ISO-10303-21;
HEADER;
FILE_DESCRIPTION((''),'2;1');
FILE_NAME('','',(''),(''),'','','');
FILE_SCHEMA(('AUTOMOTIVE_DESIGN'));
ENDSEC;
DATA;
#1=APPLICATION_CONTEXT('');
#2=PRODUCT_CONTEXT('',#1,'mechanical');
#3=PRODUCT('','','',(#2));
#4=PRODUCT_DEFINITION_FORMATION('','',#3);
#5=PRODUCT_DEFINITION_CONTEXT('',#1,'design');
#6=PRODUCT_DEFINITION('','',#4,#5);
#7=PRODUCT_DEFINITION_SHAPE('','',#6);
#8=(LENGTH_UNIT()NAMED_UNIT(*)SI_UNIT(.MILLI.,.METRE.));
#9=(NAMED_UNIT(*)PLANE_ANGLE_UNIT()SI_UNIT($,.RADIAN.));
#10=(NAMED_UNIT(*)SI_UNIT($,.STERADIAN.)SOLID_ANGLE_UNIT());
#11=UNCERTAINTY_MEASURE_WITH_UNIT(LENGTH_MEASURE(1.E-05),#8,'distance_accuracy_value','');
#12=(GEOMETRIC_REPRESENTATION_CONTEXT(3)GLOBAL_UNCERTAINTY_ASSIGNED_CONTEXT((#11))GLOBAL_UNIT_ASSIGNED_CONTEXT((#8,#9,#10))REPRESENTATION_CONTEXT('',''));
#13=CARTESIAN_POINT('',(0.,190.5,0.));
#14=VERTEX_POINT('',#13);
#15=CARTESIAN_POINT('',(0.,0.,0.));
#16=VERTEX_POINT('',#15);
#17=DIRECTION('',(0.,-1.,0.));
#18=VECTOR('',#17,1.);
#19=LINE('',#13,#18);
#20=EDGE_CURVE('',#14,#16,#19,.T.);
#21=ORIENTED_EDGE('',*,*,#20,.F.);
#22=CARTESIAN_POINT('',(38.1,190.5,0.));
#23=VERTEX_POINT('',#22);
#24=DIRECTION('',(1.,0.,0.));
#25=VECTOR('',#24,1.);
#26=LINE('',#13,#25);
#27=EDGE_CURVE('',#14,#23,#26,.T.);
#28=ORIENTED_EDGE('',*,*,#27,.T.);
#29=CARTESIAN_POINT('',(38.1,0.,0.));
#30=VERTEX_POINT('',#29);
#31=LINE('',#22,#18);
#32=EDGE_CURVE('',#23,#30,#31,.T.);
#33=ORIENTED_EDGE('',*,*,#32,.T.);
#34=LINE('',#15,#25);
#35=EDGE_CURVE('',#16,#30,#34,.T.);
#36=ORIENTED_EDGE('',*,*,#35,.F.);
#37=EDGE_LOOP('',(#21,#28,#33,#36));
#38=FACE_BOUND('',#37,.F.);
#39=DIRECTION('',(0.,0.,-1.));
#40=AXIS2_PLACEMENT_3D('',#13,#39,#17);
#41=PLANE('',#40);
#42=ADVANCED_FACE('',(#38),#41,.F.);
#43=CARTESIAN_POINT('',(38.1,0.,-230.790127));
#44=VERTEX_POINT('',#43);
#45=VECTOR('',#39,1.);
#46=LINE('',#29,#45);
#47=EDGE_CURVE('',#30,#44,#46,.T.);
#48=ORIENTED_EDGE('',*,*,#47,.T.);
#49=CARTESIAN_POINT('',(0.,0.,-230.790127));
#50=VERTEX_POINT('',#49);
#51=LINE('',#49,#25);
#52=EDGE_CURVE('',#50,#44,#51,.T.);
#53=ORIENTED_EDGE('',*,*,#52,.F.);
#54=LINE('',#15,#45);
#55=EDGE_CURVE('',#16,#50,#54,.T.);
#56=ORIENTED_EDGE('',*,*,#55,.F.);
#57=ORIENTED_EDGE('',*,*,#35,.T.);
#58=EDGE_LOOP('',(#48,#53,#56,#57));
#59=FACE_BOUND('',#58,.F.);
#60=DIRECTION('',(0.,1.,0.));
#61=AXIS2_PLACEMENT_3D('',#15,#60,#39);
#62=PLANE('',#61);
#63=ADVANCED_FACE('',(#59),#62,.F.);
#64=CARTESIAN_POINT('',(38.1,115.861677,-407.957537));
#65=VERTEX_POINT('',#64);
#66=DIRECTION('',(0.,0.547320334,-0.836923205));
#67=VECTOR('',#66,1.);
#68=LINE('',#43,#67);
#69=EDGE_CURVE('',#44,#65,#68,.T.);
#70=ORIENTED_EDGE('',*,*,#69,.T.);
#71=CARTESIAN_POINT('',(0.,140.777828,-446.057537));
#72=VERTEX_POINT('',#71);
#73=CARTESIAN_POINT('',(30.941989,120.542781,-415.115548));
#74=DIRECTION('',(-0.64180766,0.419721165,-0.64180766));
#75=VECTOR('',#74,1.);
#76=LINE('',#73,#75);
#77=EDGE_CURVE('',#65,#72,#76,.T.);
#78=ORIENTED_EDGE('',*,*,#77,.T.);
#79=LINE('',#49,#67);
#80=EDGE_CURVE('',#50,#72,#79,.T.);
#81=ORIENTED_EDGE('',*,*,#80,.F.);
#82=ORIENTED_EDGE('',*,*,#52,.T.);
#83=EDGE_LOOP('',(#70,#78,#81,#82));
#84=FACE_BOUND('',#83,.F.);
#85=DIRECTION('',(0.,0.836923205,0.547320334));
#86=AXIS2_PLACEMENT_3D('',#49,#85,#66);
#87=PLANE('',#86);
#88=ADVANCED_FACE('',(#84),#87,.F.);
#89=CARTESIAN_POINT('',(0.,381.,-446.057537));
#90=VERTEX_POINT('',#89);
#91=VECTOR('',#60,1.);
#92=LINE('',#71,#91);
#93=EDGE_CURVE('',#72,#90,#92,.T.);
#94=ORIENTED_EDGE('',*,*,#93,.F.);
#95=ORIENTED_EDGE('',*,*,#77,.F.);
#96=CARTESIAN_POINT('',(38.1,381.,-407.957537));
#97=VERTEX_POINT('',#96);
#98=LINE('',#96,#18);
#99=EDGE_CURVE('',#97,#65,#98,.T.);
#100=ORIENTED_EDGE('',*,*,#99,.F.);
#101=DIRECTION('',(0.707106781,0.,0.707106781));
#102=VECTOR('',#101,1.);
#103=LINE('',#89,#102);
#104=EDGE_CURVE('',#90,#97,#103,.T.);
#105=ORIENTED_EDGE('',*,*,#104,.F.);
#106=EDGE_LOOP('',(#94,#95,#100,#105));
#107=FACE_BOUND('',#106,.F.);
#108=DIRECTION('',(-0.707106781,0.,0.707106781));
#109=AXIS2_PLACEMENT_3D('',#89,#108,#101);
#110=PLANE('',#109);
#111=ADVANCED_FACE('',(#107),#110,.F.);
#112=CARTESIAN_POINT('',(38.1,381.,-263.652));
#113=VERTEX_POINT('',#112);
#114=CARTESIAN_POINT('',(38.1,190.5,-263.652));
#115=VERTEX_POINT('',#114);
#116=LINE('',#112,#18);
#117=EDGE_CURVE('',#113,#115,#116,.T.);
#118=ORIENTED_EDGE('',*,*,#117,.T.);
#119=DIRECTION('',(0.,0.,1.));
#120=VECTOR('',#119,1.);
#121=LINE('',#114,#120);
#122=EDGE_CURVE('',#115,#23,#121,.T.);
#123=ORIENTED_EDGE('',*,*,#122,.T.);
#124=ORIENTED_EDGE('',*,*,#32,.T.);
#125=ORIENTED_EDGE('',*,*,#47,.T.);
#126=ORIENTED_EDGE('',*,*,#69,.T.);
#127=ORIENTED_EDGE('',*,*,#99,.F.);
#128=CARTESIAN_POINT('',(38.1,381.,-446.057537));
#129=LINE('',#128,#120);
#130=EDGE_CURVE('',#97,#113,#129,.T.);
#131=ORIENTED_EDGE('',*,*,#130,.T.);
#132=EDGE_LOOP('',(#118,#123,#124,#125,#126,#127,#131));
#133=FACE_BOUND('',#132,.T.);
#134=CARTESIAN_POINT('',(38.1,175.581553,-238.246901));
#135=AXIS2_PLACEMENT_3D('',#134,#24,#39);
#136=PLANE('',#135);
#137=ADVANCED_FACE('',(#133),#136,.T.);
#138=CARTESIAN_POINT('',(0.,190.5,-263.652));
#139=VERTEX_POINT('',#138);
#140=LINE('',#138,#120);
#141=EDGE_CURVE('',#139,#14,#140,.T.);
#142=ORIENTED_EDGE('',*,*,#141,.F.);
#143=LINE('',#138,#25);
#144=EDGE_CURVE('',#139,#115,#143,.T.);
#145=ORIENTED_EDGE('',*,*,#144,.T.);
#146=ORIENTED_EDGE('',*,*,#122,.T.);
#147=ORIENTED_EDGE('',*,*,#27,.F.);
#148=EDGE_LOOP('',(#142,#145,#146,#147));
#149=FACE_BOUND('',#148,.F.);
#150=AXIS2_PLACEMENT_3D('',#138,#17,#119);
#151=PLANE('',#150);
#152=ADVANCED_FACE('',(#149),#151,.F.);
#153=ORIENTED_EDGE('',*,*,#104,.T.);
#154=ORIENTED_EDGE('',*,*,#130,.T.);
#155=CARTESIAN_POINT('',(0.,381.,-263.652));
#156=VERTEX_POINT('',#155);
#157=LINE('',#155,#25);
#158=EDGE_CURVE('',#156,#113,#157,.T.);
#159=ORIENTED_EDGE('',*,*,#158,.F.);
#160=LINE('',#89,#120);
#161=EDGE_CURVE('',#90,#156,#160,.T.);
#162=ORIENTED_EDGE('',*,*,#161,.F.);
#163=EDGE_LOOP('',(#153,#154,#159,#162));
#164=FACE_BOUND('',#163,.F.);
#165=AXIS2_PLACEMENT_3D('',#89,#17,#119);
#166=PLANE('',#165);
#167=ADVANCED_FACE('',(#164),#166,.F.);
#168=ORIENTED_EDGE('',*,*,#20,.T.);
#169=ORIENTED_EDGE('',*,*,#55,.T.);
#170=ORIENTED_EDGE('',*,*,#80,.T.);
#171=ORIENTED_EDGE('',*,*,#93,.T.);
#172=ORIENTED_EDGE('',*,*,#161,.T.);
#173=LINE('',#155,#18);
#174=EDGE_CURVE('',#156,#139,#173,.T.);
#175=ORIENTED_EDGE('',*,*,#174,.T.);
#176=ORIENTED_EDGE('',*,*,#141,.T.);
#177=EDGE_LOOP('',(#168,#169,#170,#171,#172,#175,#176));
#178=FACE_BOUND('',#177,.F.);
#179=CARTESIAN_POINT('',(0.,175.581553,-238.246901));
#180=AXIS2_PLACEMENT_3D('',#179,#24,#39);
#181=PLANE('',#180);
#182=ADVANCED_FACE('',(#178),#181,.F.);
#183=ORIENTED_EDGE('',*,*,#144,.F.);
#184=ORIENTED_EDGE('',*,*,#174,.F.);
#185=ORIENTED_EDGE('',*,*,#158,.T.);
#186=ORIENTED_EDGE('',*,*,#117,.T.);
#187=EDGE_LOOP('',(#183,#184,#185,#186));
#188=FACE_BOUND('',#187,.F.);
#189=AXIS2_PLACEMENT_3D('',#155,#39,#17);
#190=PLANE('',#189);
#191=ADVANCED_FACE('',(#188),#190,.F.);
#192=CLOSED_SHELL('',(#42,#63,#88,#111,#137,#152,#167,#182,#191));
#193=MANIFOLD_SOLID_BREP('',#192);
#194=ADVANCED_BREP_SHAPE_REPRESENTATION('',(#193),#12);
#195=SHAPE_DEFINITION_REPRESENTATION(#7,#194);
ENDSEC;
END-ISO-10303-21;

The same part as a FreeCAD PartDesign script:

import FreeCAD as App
import Part
import Sketcher
Q = App.Units.Quantity


def add_polygon(sketch, points):
    """Adds a closed chain of lines whose ends are joined by coincident constraints."""
    first, n = sketch.GeometryCount, len(points)
    for a, b in zip(points, points[1:] + points[:1]):
        sketch.addGeometry(Part.LineSegment(App.Vector(*a, 0), App.Vector(*b, 0)), False)
    for i in range(n):
        sketch.addConstraint(Sketcher.Constraint("Coincident", first + i, 2, first + (i + 1) % n, 1))

doc = App.newDocument("Part")
body = doc.addObject("PartDesign::Body", "Body")

# Sketch on YZ plane
sketch1 = doc.addObject("Sketcher::SketchObject", "Sketch")
body.addObject(sketch1)
sketch1.AttachmentSupport = (doc.YZ_Plane, [""])
sketch1.MapMode = "FlatFace"
add_polygon(sketch1, [(0, -231), (141, -446), (381, -446), (381, -264), (190, -264), (190, 0), (0, 0)])  # lines 0-6
sketch1.addConstraint([
    Sketcher.Constraint("Horizontal", 1),
    Sketcher.Constraint("Vertical", 2),
    Sketcher.Constraint("Horizontal", 3),
    Sketcher.Constraint("Vertical", 4),
    Sketcher.Constraint("Horizontal", 5),
    Sketcher.Constraint("Vertical", 6),
    Sketcher.Constraint("Coincident", 5, 2, -1, 1),
    Sketcher.Constraint("Equal", 3, 5),
    Sketcher.Constraint("DistanceX", 3, 2, 3, 1, Q("7.5 in")),
    Sketcher.Constraint("DistanceY", 4, 1, 4, 2, Q("10.38 in")),
    Sketcher.Constraint("Distance", 0, Q("257.212858 mm")),
    Sketcher.Constraint("DistanceX", 1, 1, 1, 2, Q("240.222172 mm")),
    Sketcher.Constraint("DistanceY", 2, 1, 2, 2, Q("182.405537 mm")),
])
pad1 = doc.addObject("PartDesign::Pad", "Pad")
body.addObject(pad1)
pad1.Profile = sketch1
pad1.Length = Q("1.5 in")

# Sketch on XZ plane
sketch2 = doc.addObject("Sketcher::SketchObject", "Sketch001")
body.addObject(sketch2)
sketch2.AttachmentSupport = (doc.XZ_Plane, [""])
sketch2.MapMode = "FlatFace"
sketch2.AttachmentOffset = App.Placement(App.Vector(0, 0, -15 * 25.4), App.Rotation())
add_polygon(sketch2, [(0, -446), (38, -408), (38, -446)])  # lines 0-2
sketch2.addConstraint([
    Sketcher.Constraint("Vertical", 1),
    Sketcher.Constraint("Horizontal", 2),
    Sketcher.Constraint("PointOnObject", 2, 2, -2),
    Sketcher.Constraint("Equal", 2, 1),
    Sketcher.Constraint("DistanceX", 2, 2, 2, 1, Q("1.5 in")),
    Sketcher.Constraint("DistanceY", 0, 2, -1, 1, Q("407.957537 mm")),
])
pocket1 = doc.addObject("PartDesign::Pocket", "Pocket")
body.addObject(pocket1)
pocket1.Profile = sketch2
pocket1.Type = "UpToFirst"
pocket1.Reversed = True

doc.recompute()
